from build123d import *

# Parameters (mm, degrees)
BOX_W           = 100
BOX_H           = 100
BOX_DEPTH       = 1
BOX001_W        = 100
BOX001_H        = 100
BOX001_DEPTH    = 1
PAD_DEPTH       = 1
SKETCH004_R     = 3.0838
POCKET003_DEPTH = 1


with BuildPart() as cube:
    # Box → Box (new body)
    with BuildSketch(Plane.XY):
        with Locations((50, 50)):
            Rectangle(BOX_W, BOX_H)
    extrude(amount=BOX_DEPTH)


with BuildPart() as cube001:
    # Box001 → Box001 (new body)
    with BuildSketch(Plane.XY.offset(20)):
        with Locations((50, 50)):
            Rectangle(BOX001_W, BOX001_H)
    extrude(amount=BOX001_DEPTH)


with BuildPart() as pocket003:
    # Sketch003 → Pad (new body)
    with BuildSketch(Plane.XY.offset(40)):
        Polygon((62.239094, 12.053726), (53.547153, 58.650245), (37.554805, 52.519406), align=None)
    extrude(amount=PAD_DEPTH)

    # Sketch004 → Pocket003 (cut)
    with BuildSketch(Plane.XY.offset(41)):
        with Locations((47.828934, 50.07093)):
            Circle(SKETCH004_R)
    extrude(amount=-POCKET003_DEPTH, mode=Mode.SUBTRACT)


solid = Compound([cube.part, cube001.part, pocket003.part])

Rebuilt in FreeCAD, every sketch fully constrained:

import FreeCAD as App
import Part
import Sketcher

V = App.Vector
Q = App.Units.Quantity

doc = App.newDocument("Part")
body = doc.addObject("PartDesign::Body", "Body")

# Sketch on XY plane
sketch1 = body.newObject("Sketcher::SketchObject", "Sketch")
sketch1.AttachmentSupport = (doc.getObject("XY_Plane"), [""])
sketch1.MapMode = "FlatFace"
sketch1.addGeometry(Part.LineSegment(V(0, 100, 0), V(0, 0, 0)), False)
sketch1.addGeometry(Part.LineSegment(V(0, 0, 0), V(100, 0, 0)), False)
sketch1.addGeometry(Part.LineSegment(V(100, 0, 0), V(100, 100, 0)), False)
sketch1.addGeometry(Part.LineSegment(V(100, 100, 0), V(0, 100, 0)), False)
sketch1.addConstraint(Sketcher.Constraint("Coincident", 0, 2, 1, 1))
sketch1.addConstraint(Sketcher.Constraint("Coincident", 1, 2, 2, 1))
sketch1.addConstraint(Sketcher.Constraint("Coincident", 2, 2, 3, 1))
sketch1.addConstraint(Sketcher.Constraint("Coincident", 3, 2, 0, 1))
sketch1.addConstraint(Sketcher.Constraint("Vertical", 0))
sketch1.addConstraint(Sketcher.Constraint("Horizontal", 1))
sketch1.addConstraint(Sketcher.Constraint("Vertical", 2))
sketch1.addConstraint(Sketcher.Constraint("Horizontal", 3))
sketch1.addConstraint(Sketcher.Constraint("Coincident", 0, 2, -1, 1))
sketch1.addConstraint(Sketcher.Constraint("Equal", 3, 0))
sketch1.addConstraint(Sketcher.Constraint("DistanceX", 1, 1, 1, 2, Q("100 mm")))
pad1 = body.newObject("PartDesign::Pad", "Pad")
pad1.Profile = sketch1
pad1.Length = 1
body2 = doc.addObject("PartDesign::Body", "Body001")

# Sketch on XY plane
sketch2 = body2.newObject("Sketcher::SketchObject", "Sketch001")
sketch2.AttachmentSupport = (doc.getObject("XY_Plane001"), [""])
sketch2.MapMode = "FlatFace"
sketch2.AttachmentOffset = App.Placement(V(0, 0, 20), App.Rotation())
sketch2.addGeometry(Part.LineSegment(V(0, 100, 0), V(0, 0, 0)), False)
sketch2.addGeometry(Part.LineSegment(V(0, 0, 0), V(100, 0, 0)), False)
sketch2.addGeometry(Part.LineSegment(V(100, 0, 0), V(100, 100, 0)), False)
sketch2.addGeometry(Part.LineSegment(V(100, 100, 0), V(0, 100, 0)), False)
sketch2.addConstraint(Sketcher.Constraint("Coincident", 0, 2, 1, 1))
sketch2.addConstraint(Sketcher.Constraint("Coincident", 1, 2, 2, 1))
sketch2.addConstraint(Sketcher.Constraint("Coincident", 2, 2, 3, 1))
sketch2.addConstraint(Sketcher.Constraint("Coincident", 3, 2, 0, 1))
sketch2.addConstraint(Sketcher.Constraint("Vertical", 0))
sketch2.addConstraint(Sketcher.Constraint("Horizontal", 1))
sketch2.addConstraint(Sketcher.Constraint("Vertical", 2))
sketch2.addConstraint(Sketcher.Constraint("Horizontal", 3))
sketch2.addConstraint(Sketcher.Constraint("Coincident", 0, 2, -1, 1))
sketch2.addConstraint(Sketcher.Constraint("Equal", 3, 0))
sketch2.addConstraint(Sketcher.Constraint("DistanceX", 1, 1, 1, 2, Q("100 mm")))
pad2 = body2.newObject("PartDesign::Pad", "Pad001")
pad2.Profile = sketch2
pad2.Length = 1
body3 = doc.addObject("PartDesign::Body", "Body002")

# Sketch on XY plane
sketch3 = body3.newObject("Sketcher::SketchObject", "Sketch002")
sketch3.AttachmentSupport = (doc.getObject("XY_Plane002"), [""])
sketch3.MapMode = "FlatFace"
sketch3.AttachmentOffset = App.Placement(V(0, 0, 40), App.Rotation())
sketch3.addGeometry(Part.LineSegment(V(62, 12, 0), V(54, 59, 0)), False)
sketch3.addGeometry(Part.LineSegment(V(54, 59, 0), V(38, 53, 0)), False)
sketch3.addGeometry(Part.LineSegment(V(38, 53, 0), V(62, 12, 0)), False)
sketch3.addConstraint(Sketcher.Constraint("Coincident", 0, 2, 1, 1))
sketch3.addConstraint(Sketcher.Constraint("Coincident", 1, 2, 2, 1))
sketch3.addConstraint(Sketcher.Constraint("Coincident", 2, 2, 0, 1))
sketch3.addConstraint(Sketcher.Constraint("Equal", 0, 2))
sketch3.addConstraint(Sketcher.Constraint("Distance", 0, Q("47.400268 mm")))
sketch3.addConstraint(Sketcher.Constraint("Distance", 1, Q("17.127241 mm")))
sketch3.addConstraint(Sketcher.Constraint("DistanceY", 1, 2, 0, 2, Q("6.130839 mm")))
sketch3.addConstraint(Sketcher.Constraint("DistanceX", -1, 1, 0, 2, Q("53.547153 mm")))
sketch3.addConstraint(Sketcher.Constraint("DistanceY", -1, 1, 0, 2, Q("58.650245 mm")))
pad3 = body3.newObject("PartDesign::Pad", "Pad002")
pad3.Profile = sketch3
pad3.Length = 1

# Sketch on XY plane
sketch4 = body3.newObject("Sketcher::SketchObject", "Sketch003")
sketch4.AttachmentSupport = (doc.getObject("XY_Plane002"), [""])
sketch4.MapMode = "FlatFace"
sketch4.AttachmentOffset = App.Placement(V(0, 0, 41), App.Rotation())
sketch4.addGeometry(Part.Circle(V(47.8, 50.1, 0), V(0, 0, 1), 3.1), False)
sketch4.addConstraint(Sketcher.Constraint("Diameter", 0, Q("6.1676 mm")))
sketch4.addConstraint(Sketcher.Constraint("DistanceY", -1, 1, 0, 3, Q("50.07093 mm")))
sketch4.addConstraint(Sketcher.Constraint("DistanceX", -1, 1, 0, 3, Q("47.828934 mm")))
pocket1 = body3.newObject("PartDesign::Pocket", "Pocket")
pocket1.Profile = sketch4
pocket1.Length = 1

doc.recompute()
